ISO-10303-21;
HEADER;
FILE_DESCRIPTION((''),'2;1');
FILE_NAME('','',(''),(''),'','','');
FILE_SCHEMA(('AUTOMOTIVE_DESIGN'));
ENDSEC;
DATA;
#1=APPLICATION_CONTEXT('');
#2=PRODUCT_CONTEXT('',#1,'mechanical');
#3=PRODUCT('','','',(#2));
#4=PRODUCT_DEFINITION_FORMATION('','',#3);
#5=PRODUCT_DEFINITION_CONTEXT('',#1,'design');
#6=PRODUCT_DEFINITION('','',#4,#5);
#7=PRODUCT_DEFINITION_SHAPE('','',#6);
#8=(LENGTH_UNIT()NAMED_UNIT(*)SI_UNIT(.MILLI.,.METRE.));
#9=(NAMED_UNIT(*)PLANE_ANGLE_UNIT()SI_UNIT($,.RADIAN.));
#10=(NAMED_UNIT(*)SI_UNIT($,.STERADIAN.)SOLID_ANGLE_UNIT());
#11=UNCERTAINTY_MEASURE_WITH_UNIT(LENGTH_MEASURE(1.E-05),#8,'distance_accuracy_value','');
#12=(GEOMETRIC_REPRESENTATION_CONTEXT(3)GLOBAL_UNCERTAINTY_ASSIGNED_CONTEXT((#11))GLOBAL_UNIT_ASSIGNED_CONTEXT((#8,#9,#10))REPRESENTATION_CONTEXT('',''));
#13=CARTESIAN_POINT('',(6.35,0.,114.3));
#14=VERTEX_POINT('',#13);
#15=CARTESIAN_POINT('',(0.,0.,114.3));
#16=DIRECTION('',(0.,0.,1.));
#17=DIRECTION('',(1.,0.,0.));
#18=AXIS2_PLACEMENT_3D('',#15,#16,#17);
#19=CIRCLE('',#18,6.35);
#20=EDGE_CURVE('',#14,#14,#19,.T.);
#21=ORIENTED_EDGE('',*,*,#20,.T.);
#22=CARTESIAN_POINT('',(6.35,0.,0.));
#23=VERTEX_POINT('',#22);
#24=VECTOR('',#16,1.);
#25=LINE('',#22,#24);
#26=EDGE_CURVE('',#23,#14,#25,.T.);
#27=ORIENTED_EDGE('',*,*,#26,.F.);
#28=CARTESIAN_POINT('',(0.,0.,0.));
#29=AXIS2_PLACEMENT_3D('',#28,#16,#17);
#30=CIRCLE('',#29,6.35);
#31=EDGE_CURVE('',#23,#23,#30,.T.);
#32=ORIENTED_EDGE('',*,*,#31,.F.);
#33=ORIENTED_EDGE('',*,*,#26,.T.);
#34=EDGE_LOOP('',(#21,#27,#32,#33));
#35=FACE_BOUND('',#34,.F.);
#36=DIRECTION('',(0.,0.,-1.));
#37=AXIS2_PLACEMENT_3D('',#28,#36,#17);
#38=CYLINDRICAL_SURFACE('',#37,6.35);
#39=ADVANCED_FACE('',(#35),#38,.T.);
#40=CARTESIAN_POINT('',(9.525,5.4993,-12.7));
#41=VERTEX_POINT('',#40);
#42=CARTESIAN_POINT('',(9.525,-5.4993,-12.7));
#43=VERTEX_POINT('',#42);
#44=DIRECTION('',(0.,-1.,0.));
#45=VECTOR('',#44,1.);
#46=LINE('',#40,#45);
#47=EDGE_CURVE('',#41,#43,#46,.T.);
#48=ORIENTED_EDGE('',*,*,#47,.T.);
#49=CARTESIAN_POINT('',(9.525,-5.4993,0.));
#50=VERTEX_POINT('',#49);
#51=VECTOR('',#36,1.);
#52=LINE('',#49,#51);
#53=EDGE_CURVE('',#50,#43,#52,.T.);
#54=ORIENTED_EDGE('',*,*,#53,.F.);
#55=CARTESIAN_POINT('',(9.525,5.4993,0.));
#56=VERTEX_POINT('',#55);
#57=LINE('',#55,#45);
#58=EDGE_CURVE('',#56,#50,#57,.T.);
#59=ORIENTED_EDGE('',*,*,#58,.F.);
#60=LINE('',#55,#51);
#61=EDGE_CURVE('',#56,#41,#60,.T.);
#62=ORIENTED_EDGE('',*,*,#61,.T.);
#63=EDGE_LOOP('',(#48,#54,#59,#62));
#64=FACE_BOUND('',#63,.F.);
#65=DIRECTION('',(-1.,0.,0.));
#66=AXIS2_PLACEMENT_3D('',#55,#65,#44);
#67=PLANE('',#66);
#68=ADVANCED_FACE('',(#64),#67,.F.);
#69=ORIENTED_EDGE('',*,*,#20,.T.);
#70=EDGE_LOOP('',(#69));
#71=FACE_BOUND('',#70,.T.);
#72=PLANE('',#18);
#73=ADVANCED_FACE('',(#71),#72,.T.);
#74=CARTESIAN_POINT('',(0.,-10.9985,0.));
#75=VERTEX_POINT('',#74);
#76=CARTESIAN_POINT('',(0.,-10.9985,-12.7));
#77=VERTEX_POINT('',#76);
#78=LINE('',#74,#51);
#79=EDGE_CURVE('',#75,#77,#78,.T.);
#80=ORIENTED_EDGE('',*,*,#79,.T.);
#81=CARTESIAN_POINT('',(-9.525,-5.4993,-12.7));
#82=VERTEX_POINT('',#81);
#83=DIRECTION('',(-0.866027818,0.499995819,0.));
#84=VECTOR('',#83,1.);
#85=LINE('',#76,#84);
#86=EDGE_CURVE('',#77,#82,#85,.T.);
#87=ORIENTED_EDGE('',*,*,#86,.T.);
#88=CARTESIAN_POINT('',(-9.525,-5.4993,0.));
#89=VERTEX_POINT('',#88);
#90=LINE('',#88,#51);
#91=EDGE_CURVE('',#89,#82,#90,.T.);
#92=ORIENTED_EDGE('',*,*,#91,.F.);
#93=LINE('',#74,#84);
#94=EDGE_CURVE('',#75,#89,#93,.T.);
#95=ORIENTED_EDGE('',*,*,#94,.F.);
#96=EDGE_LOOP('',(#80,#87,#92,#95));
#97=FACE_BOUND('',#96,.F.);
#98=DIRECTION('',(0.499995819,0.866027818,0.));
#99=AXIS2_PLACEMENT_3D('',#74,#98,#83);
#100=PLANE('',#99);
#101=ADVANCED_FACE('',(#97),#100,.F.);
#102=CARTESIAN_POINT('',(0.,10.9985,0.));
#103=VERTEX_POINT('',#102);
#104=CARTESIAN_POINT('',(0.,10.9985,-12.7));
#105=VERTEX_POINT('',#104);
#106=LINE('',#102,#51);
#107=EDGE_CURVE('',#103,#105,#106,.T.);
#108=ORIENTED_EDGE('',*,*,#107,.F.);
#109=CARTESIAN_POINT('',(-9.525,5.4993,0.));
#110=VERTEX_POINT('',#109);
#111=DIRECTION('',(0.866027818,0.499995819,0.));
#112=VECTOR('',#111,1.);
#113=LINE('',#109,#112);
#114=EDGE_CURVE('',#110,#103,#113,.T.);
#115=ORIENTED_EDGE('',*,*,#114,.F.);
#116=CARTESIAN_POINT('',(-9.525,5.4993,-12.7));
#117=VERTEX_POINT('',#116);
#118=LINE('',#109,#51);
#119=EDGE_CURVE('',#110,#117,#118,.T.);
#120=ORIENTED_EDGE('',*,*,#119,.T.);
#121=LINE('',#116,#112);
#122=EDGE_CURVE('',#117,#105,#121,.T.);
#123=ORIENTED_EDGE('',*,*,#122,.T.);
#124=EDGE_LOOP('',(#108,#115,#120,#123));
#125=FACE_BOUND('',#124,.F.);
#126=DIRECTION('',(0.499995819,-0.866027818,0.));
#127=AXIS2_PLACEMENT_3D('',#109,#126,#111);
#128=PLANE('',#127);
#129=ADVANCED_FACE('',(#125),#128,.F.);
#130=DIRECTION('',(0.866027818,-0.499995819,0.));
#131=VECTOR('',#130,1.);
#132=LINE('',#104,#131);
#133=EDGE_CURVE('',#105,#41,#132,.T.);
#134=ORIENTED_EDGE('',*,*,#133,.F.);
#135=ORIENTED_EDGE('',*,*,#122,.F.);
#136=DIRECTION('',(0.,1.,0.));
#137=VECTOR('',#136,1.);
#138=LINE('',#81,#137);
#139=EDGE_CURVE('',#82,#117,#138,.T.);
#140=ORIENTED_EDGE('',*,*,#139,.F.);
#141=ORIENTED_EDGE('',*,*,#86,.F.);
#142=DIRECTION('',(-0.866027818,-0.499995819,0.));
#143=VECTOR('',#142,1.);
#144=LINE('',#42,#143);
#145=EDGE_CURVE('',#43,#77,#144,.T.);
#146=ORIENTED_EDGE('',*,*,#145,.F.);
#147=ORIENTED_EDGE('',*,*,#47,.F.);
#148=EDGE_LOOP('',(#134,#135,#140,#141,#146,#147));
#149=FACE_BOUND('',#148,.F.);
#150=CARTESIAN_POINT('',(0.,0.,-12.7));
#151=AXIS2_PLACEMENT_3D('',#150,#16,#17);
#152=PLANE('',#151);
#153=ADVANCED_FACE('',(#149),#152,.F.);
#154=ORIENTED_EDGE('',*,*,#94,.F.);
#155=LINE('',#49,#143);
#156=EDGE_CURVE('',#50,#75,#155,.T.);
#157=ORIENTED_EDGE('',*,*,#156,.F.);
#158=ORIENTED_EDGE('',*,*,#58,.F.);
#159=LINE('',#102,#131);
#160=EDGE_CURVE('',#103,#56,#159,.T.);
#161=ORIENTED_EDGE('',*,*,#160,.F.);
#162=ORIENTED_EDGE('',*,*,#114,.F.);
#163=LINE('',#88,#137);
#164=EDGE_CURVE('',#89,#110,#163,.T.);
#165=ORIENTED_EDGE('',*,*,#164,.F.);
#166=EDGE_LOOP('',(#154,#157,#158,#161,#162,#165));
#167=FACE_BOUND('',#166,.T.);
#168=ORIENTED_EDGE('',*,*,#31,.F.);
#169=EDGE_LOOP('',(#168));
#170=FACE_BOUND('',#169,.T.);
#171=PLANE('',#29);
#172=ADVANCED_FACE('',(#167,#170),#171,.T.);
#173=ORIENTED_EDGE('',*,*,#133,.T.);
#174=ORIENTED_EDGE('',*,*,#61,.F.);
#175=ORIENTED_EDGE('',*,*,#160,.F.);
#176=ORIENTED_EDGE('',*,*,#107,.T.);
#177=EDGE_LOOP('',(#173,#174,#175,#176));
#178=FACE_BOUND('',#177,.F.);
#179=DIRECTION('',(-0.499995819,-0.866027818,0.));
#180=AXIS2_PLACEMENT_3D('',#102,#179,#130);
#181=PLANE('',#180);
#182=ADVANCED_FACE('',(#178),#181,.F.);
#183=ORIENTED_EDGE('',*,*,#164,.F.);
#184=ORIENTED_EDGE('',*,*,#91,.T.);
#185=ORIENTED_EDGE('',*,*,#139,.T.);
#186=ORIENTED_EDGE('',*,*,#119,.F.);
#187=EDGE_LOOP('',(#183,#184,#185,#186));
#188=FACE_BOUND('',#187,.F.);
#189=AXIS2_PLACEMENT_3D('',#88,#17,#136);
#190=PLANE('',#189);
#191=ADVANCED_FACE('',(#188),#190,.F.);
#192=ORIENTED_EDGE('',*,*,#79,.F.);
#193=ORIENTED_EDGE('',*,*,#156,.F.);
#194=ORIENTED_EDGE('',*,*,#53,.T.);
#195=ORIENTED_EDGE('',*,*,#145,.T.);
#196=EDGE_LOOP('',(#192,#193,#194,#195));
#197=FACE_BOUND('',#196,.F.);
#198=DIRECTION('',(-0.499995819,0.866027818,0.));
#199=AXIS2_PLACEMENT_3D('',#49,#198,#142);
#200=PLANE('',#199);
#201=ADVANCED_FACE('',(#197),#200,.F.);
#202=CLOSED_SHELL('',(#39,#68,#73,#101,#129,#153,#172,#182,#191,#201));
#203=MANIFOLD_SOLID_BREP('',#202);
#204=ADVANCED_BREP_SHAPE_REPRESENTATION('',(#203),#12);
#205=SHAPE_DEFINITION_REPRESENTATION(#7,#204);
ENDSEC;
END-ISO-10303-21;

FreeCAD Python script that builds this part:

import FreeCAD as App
import Part
import Sketcher
Q = App.Units.Quantity

doc = App.newDocument("Part")
body = doc.addObject("PartDesign::Body", "Body")

sketch1 = doc.addObject("Sketcher::SketchObject", "Sketch")
body.addObject(sketch1)
sketch1.AttachmentSupport = (doc.XY_Plane, [""])
sketch1.MapMode = "FlatFace"
sketch1.addGeometry([
    Part.LineSegment(App.Vector(10, 5, 0), App.Vector(0, 11, 0)),
    Part.LineSegment(App.Vector(0, 11, 0), App.Vector(-10, 5, 0)),
    Part.LineSegment(App.Vector(-10, 5, 0), App.Vector(-10, -5, 0)),
    Part.LineSegment(App.Vector(-10, -5, 0), App.Vector(0, -11, 0)),
    Part.LineSegment(App.Vector(0, -11, 0), App.Vector(10, -5, 0)),
    Part.LineSegment(App.Vector(10, -5, 0), App.Vector(10, 5, 0)),
], False)
sketch1.addConstraint([
    Sketcher.Constraint("Coincident", 0, 2, 1, 1),
    Sketcher.Constraint("Coincident", 1, 2, 2, 1),
    Sketcher.Constraint("Coincident", 2, 2, 3, 1),
    Sketcher.Constraint("Coincident", 3, 2, 4, 1),
    Sketcher.Constraint("Coincident", 4, 2, 5, 1),
    Sketcher.Constraint("Coincident", 5, 2, 0, 1),
    Sketcher.Constraint("Vertical", 2),
    Sketcher.Constraint("Vertical", 5),
    Sketcher.Constraint("Symmetric", 0, 2, 3, 2, -1, 1),
    Sketcher.Constraint("Symmetric", 1, 2, 4, 2, -1, 1),
    Sketcher.Constraint("PointOnObject", 0, 2, -2),
    Sketcher.Constraint("Parallel", 0, 3),
    Sketcher.Constraint("Horizontal", 2, 2, 4, 2),
    Sketcher.Constraint("DistanceX", 2, 2, 4, 2, Q("0.75 in")),
    Sketcher.Constraint("Angle", 0, Q("150.0003 deg")),
    Sketcher.Constraint("DistanceY", -1, 1, 0, 2, Q("0.433 in")),
])
pad1 = doc.addObject("PartDesign::Pad", "Pad")
body.addObject(pad1)
pad1.Profile = sketch1
pad1.Length = Q("0.5 in")
pad1.Reversed = True

sketch2 = doc.addObject("Sketcher::SketchObject", "Sketch001")
body.addObject(sketch2)
sketch2.AttachmentSupport = (doc.XY_Plane, [""])
sketch2.MapMode = "FlatFace"
sketch2.addGeometry(Part.Circle(App.Vector(0, 0, 0), App.Vector(0, 0, 1), 6), False)
sketch2.addConstraint([
    Sketcher.Constraint("Coincident", 0, 3, -1, 1),
    Sketcher.Constraint("Diameter", 0, Q("0.5 in")),
])
pad2 = doc.addObject("PartDesign::Pad", "Pad001")
body.addObject(pad2)
pad2.Profile = sketch2
pad2.Length = Q("4.5 in")

doc.recompute()
